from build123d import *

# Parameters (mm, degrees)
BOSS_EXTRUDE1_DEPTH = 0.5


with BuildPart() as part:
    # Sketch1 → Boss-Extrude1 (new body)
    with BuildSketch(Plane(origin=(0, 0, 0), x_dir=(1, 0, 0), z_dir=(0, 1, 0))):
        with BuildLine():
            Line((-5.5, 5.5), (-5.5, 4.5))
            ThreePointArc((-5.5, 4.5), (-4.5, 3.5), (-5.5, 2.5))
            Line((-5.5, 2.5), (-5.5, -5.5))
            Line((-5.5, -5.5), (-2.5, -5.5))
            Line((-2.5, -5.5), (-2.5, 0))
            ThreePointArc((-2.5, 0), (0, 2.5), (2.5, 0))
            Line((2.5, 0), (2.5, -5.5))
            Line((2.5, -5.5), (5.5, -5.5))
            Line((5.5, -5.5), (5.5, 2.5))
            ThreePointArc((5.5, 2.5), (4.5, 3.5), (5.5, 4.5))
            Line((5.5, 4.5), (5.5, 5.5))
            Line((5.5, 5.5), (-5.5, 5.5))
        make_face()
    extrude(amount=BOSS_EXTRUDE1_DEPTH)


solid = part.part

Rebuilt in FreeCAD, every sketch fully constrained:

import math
import FreeCAD as App
import Part
import Sketcher

V = App.Vector

doc = App.newDocument("Part")
body = doc.addObject("PartDesign::Body", "Body")

# Sketch on XZ plane
sketch1 = body.newObject("Sketcher::SketchObject", "Sketch")
sketch1.AttachmentSupport = (doc.getObject("XZ_Plane"), [""])
sketch1.MapMode = "FlatFace"
sketch1.addGeometry([
    Part.LineSegment(V(-5.5, -5.5, 0), V(-5.5, -4.5, 0)),  # 0
    Part.ArcOfCircle(Part.Circle(V(-5.5, -3.5, 0), V(0, 0, 1), 1), math.radians(-90), math.radians(90)),  # 1
    Part.LineSegment(V(-5.5, -2.5, 0), V(-5.5, 5.5, 0)),  # 2
    Part.LineSegment(V(-5.5, 5.5, 0), V(-2.5, 5.5, 0)),  # 3
    Part.LineSegment(V(-2.5, 5.5, 0), V(-2.5, 0, 0)),  # 4
    Part.ArcOfCircle(Part.Circle(V(0, 0, 0), V(0, 0, 1), 2.5), math.radians(180), math.radians(360)),  # 5
    Part.LineSegment(V(2.5, 0, 0), V(2.5, 5.5, 0)),  # 6
    Part.LineSegment(V(2.5, 5.5, 0), V(5.5, 5.5, 0)),  # 7
    Part.LineSegment(V(5.5, 5.5, 0), V(5.5, -2.5, 0)),  # 8
    Part.ArcOfCircle(Part.Circle(V(5.5, -3.5, 0), V(0, 0, 1), 1), math.radians(90), math.radians(270)),  # 9
    Part.LineSegment(V(5.5, -4.5, 0), V(5.5, -5.5, 0)),  # 10
    Part.LineSegment(V(5.5, -5.5, 0), V(-5.5, -5.5, 0)),  # 11
], False)
sketch1.addConstraint([
    Sketcher.Constraint("Coincident", 0, 2, 1, 1),
    Sketcher.Constraint("Coincident", 1, 2, 2, 1),
    Sketcher.Constraint("Coincident", 2, 2, 3, 1),
    Sketcher.Constraint("Coincident", 3, 2, 4, 1),
    Sketcher.Constraint("Tangent", 4, 2, 5, 1),
    Sketcher.Constraint("Tangent", 5, 2, 6, 1),
    Sketcher.Constraint("Coincident", 6, 2, 7, 1),
    Sketcher.Constraint("Coincident", 7, 2, 8, 1),
    Sketcher.Constraint("Coincident", 8, 2, 9, 1),
    Sketcher.Constraint("Coincident", 9, 2, 10, 1),
    Sketcher.Constraint("Coincident", 10, 2, 11, 1),
    Sketcher.Constraint("Coincident", 11, 2, 0, 1),
    Sketcher.Constraint("Vertical", 0),
    Sketcher.Constraint("Vertical", 2),
    Sketcher.Constraint("Horizontal", 3),
    Sketcher.Constraint("Vertical", 4),
    Sketcher.Constraint("Vertical", 6),
    Sketcher.Constraint("Horizontal", 7),
    Sketcher.Constraint("Vertical", 8),
    Sketcher.Constraint("Vertical", 10),
    Sketcher.Constraint("Horizontal", 11),
    Sketcher.Constraint("Coincident", 5, 3, -1, 1),
    Sketcher.Constraint("Equal", 1, 9),
    Sketcher.Constraint("Symmetric", 2, 2, 10, 2, -1, 1),
    Sketcher.Constraint("Symmetric", 7, 2, 11, 2, -1, 1),
    Sketcher.Constraint("Symmetric", 1, 3, 9, 3, -2),
    Sketcher.Constraint("Vertical", 1, 3, 0, 2),
    Sketcher.Constraint("Vertical", 0, 2, 1, 2),
    Sketcher.Constraint("Radius", 1, 1.0),
    Sketcher.Constraint("Radius", 5, 2.5),
    Sketcher.Constraint("DistanceX", 3, 1, 3, 2, 3.0),
    Sketcher.Constraint("DistanceY", 0, 1, 0, 2, 1.0),
    Sketcher.Constraint("DistanceY", 2, 1, 2, 2, 8.0),
])
pad1 = body.newObject("PartDesign::Pad", "Pad")
pad1.Profile = sketch1
pad1.Length = 0.5
pad1.Reversed = True

doc.recompute()
